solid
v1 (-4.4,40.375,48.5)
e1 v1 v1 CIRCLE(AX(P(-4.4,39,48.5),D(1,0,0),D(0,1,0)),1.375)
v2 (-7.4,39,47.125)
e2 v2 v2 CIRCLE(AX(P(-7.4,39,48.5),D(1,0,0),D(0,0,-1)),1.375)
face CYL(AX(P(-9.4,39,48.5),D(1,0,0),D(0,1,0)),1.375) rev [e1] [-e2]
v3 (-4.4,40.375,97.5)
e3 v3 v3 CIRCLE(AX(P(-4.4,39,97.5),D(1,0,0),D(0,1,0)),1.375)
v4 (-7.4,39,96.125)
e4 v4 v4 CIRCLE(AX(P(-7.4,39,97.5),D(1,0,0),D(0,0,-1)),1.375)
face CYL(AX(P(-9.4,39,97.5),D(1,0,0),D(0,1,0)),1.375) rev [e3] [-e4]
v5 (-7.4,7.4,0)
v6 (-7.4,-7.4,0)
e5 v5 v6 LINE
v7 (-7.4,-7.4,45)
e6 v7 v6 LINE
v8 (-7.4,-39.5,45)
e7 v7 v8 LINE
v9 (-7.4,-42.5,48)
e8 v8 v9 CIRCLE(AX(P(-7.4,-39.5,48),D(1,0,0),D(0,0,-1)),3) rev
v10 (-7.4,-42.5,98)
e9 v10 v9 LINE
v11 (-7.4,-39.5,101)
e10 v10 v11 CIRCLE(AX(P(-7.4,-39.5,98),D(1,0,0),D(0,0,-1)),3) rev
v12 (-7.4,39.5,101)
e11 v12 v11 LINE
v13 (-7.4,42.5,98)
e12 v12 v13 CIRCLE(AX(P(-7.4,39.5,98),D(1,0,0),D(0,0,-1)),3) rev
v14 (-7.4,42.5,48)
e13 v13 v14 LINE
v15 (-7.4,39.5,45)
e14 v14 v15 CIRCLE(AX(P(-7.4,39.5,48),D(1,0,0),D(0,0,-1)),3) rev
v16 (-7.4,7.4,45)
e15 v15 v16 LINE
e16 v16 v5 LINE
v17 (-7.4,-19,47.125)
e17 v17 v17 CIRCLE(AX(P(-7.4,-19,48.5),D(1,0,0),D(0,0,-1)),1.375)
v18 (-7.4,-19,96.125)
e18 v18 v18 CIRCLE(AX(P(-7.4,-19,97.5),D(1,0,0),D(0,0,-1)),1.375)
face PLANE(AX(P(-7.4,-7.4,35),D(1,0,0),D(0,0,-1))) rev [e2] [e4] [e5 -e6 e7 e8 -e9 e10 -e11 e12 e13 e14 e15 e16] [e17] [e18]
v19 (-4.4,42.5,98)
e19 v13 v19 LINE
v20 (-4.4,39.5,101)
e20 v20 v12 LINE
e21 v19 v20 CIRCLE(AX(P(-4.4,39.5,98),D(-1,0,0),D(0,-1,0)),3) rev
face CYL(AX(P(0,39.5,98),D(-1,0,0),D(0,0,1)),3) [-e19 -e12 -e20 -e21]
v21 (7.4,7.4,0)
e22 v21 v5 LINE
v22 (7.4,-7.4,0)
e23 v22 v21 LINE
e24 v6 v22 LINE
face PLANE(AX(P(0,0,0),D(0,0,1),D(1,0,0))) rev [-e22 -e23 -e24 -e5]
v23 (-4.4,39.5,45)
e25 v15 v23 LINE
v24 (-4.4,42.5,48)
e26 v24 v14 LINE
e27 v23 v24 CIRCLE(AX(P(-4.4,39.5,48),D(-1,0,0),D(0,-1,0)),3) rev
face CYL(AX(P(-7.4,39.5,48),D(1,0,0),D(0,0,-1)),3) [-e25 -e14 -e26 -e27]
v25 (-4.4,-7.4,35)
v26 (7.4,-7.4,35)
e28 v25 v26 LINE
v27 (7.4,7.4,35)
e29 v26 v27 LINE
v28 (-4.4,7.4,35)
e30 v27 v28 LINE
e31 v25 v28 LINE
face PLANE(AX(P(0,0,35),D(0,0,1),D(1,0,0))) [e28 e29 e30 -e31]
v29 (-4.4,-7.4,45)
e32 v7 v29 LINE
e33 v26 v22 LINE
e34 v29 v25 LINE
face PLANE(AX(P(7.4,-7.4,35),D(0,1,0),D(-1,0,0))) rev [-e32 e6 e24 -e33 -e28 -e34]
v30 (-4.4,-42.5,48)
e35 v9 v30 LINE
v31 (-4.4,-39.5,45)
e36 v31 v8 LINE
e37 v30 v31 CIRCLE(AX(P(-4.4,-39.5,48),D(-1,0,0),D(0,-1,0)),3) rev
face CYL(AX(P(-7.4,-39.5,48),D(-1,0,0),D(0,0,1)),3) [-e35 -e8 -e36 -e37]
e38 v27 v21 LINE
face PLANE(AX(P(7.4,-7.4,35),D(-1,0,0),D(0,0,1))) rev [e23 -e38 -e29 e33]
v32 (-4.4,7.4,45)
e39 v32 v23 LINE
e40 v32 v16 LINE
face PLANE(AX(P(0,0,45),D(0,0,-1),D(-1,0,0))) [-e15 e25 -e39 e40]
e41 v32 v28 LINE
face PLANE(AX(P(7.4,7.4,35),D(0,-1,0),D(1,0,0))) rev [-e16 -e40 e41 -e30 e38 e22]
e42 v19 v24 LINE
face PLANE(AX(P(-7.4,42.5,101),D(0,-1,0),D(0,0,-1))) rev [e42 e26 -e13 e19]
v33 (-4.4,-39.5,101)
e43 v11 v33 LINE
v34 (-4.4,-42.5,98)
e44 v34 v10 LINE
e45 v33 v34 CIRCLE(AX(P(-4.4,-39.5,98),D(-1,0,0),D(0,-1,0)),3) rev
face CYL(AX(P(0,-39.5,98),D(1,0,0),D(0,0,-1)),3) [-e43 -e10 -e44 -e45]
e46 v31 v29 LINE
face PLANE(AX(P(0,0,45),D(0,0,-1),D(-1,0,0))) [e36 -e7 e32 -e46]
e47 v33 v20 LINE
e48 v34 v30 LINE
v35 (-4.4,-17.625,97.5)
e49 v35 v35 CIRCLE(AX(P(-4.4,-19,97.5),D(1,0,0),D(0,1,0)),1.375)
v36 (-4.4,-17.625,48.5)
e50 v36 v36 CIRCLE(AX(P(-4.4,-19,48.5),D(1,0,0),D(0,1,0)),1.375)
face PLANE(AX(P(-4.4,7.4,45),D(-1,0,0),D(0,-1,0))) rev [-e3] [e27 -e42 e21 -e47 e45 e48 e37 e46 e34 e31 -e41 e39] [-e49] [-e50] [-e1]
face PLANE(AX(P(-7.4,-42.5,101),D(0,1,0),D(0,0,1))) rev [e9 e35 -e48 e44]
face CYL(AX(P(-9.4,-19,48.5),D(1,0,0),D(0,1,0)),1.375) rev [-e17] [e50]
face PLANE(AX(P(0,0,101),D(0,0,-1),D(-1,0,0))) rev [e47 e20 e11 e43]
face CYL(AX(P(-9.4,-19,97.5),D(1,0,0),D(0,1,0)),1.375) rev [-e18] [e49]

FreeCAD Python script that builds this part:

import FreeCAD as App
import Part
import Sketcher

V = App.Vector


def edges_at(feature, points):
    """Names of the edges that pass closest to the given points."""
    edges = feature.Shape.Edges
    near = lambda p: min(range(len(edges)), key=lambda i: edges[i].distToShape(Part.Vertex(*p))[0])
    return sorted({f"Edge{near(p) + 1}" for p in points})


def add_polygon(sketch, points):
    """Adds a closed chain of lines whose ends are joined by coincident constraints."""
    first, n = sketch.GeometryCount, len(points)
    for a, b in zip(points, points[1:] + points[:1]):
        sketch.addGeometry(Part.LineSegment(App.Vector(*a, 0), App.Vector(*b, 0)), False)
    for i in range(n):
        sketch.addConstraint(Sketcher.Constraint("Coincident", first + i, 2, first + (i + 1) % n, 1))

doc = App.newDocument("Part")
params = doc.addObject("Spreadsheet::Sheet", "Params")
for row, (alias, value) in enumerate([
    ("sketch1_width", "14.8 mm"),
    ("pad1_length", "35 mm"),
    ("sketch2_width", "3 mm"),
    ("sketch2_height", "14.8 mm"),
    ("pad2_length", "10 mm"),
    ("sketch3_width", "3 mm"),
    ("sketch3_height", "85 mm"),
    ("pad3_length", "56 mm"),
    ("sketch4_diameter", "2.75 mm"),
    ("pocket1_length", "5 mm"),
    ("fillet_radius", "3 mm"),
], start=1):
    params.set(f"A{row}", alias)
    params.set(f"B{row}", "=" + value)
    params.setAlias(f"B{row}", alias)

body = doc.addObject("PartDesign::Body", "Body")

sketch1 = body.newObject("Sketcher::SketchObject", "Sketch")
sketch1.AttachmentSupport = (doc.getObject("XY_Plane"), [""])
sketch1.MapMode = "FlatFace"
add_polygon(sketch1, [(-7, 7), (-7, -7), (7, -7), (7, 7)])
sketch1.addConstraint(Sketcher.Constraint("Vertical", 0))
sketch1.addConstraint(Sketcher.Constraint("Horizontal", 1))
sketch1.addConstraint(Sketcher.Constraint("Vertical", 2))
sketch1.addConstraint(Sketcher.Constraint("Horizontal", 3))
sketch1.addConstraint(Sketcher.Constraint("Symmetric", 0, 2, 2, 2, -1, 1))
sketch1.addConstraint(Sketcher.Constraint("Equal", 3, 0))
sketch1.addConstraint(Sketcher.Constraint("DistanceX", 1, 1, 1, 2, 14.8))
sketch1.setExpression("Constraints[10]", "Params.sketch1_width")
pad1 = body.newObject("PartDesign::Pad", "Pad")
pad1.Profile = sketch1
pad1.setExpression("Length", "Params.pad1_length")

sketch2 = body.newObject("Sketcher::SketchObject", "Sketch001")
sketch2.AttachmentSupport = (doc.getObject("XY_Plane"), [""])
sketch2.MapMode = "FlatFace"
sketch2.AttachmentOffset = App.Placement(V(0, 0, 35), App.Rotation())
add_polygon(sketch2, [(-7.4, 7.4), (-7.4, -7.4), (-4.4, -7.4), (-4.4, 7.4)])
sketch2.addConstraint(Sketcher.Constraint("Vertical", 0))
sketch2.addConstraint(Sketcher.Constraint("Horizontal", 1))
sketch2.addConstraint(Sketcher.Constraint("Vertical", 2))
sketch2.addConstraint(Sketcher.Constraint("Horizontal", 3))
sketch2.addConstraint(Sketcher.Constraint("DistanceX", 1, 1, 1, 2, 3.0))
sketch2.addConstraint(Sketcher.Constraint("DistanceY", 0, 2, 0, 1, 14.8))
sketch2.addConstraint(Sketcher.Constraint("DistanceX", 0, 2, -1, 1, 7.4))
sketch2.addConstraint(Sketcher.Constraint("DistanceY", 0, 2, -1, 1, 7.4))
sketch2.setExpression("Constraints[8]", "Params.sketch2_width")
sketch2.setExpression("Constraints[9]", "Params.sketch2_height")
pad2 = body.newObject("PartDesign::Pad", "Pad001")
pad2.Profile = sketch2
pad2.setExpression("Length", "Params.pad2_length")

sketch3 = body.newObject("Sketcher::SketchObject", "Sketch002")
sketch3.AttachmentSupport = (doc.getObject("XY_Plane"), [""])
sketch3.MapMode = "FlatFace"
sketch3.AttachmentOffset = App.Placement(V(0, 0, 45), App.Rotation())
add_polygon(sketch3, [(-7.4, 42.5), (-7.4, -42.5), (-4.4, -42.5), (-4.4, 42.5)])
sketch3.addConstraint(Sketcher.Constraint("Vertical", 0))
sketch3.addConstraint(Sketcher.Constraint("Horizontal", 1))
sketch3.addConstraint(Sketcher.Constraint("Vertical", 2))
sketch3.addConstraint(Sketcher.Constraint("Horizontal", 3))
sketch3.addConstraint(Sketcher.Constraint("DistanceX", 1, 1, 1, 2, 3.0))
sketch3.addConstraint(Sketcher.Constraint("DistanceY", 0, 2, 0, 1, 85.0))
sketch3.addConstraint(Sketcher.Constraint("DistanceX", 0, 2, -1, 1, 7.4))
sketch3.addConstraint(Sketcher.Constraint("DistanceY", 0, 2, -1, 1, 42.5))
sketch3.setExpression("Constraints[8]", "Params.sketch3_width")
sketch3.setExpression("Constraints[9]", "Params.sketch3_height")
pad3 = body.newObject("PartDesign::Pad", "Pad002")
pad3.Profile = sketch3
pad3.setExpression("Length", "Params.pad3_length")

sketch4 = body.newObject("Sketcher::SketchObject", "Sketch003")
sketch4.AttachmentSupport = (doc.getObject("YZ_Plane"), [""])
sketch4.MapMode = "FlatFace"
sketch4.AttachmentOffset = App.Placement(V(0, 0, -4.4), App.Rotation())
sketch4.addGeometry(Part.Circle(V(39, 97.5, 0), V(0, 0, 1), 1.4), False)
sketch4.addGeometry(Part.Circle(V(39, 48.5, 0), V(0, 0, 1), 1.4), False)
sketch4.addGeometry(Part.Circle(V(-19, 48.5, 0), V(0, 0, 1), 1.4), False)
sketch4.addGeometry(Part.Circle(V(-19, 97.5, 0), V(0, 0, 1), 1.4), False)
sketch4.addConstraint(Sketcher.Constraint("Equal", 0, 1))
sketch4.addConstraint(Sketcher.Constraint("Equal", 1, 2))
sketch4.addConstraint(Sketcher.Constraint("Equal", 2, 3))
sketch4.addConstraint(Sketcher.Constraint("Horizontal", 1, 3, 2, 3))
sketch4.addConstraint(Sketcher.Constraint("Horizontal", 0, 3, 3, 3))
sketch4.addConstraint(Sketcher.Constraint("Vertical", 0, 3, 1, 3))
sketch4.addConstraint(Sketcher.Constraint("Vertical", 2, 3, 3, 3))
sketch4.addConstraint(Sketcher.Constraint("Diameter", 0, 2.75))
sketch4.addConstraint(Sketcher.Constraint("DistanceX", -1, 1, 0, 3, 39.0))
sketch4.addConstraint(Sketcher.Constraint("DistanceX", 2, 3, -1, 1, 19.0))
sketch4.addConstraint(Sketcher.Constraint("DistanceY", 1, 3, 0, 3, 49.0))
sketch4.addConstraint(Sketcher.Constraint("DistanceY", -1, 1, 0, 3, 97.5))
sketch4.setExpression("Constraints[7]", "Params.sketch4_diameter")
pocket1 = body.newObject("PartDesign::Pocket", "Pocket")
pocket1.Profile = sketch4
pocket1.setExpression("Length", "Params.pocket1_length")
doc.recompute()

fillet = body.newObject("PartDesign::Fillet", "Fillet")
fillet.Base = (pocket1, edges_at(pocket1, [
    (-5.9, -42.5, 45),
    (-5.9, 42.5, 45),
    (-5.9, -42.5, 101),
    (-5.9, 42.5, 101),
]))
fillet.setExpression("Radius", "Params.fillet_radius")

doc.recompute()
